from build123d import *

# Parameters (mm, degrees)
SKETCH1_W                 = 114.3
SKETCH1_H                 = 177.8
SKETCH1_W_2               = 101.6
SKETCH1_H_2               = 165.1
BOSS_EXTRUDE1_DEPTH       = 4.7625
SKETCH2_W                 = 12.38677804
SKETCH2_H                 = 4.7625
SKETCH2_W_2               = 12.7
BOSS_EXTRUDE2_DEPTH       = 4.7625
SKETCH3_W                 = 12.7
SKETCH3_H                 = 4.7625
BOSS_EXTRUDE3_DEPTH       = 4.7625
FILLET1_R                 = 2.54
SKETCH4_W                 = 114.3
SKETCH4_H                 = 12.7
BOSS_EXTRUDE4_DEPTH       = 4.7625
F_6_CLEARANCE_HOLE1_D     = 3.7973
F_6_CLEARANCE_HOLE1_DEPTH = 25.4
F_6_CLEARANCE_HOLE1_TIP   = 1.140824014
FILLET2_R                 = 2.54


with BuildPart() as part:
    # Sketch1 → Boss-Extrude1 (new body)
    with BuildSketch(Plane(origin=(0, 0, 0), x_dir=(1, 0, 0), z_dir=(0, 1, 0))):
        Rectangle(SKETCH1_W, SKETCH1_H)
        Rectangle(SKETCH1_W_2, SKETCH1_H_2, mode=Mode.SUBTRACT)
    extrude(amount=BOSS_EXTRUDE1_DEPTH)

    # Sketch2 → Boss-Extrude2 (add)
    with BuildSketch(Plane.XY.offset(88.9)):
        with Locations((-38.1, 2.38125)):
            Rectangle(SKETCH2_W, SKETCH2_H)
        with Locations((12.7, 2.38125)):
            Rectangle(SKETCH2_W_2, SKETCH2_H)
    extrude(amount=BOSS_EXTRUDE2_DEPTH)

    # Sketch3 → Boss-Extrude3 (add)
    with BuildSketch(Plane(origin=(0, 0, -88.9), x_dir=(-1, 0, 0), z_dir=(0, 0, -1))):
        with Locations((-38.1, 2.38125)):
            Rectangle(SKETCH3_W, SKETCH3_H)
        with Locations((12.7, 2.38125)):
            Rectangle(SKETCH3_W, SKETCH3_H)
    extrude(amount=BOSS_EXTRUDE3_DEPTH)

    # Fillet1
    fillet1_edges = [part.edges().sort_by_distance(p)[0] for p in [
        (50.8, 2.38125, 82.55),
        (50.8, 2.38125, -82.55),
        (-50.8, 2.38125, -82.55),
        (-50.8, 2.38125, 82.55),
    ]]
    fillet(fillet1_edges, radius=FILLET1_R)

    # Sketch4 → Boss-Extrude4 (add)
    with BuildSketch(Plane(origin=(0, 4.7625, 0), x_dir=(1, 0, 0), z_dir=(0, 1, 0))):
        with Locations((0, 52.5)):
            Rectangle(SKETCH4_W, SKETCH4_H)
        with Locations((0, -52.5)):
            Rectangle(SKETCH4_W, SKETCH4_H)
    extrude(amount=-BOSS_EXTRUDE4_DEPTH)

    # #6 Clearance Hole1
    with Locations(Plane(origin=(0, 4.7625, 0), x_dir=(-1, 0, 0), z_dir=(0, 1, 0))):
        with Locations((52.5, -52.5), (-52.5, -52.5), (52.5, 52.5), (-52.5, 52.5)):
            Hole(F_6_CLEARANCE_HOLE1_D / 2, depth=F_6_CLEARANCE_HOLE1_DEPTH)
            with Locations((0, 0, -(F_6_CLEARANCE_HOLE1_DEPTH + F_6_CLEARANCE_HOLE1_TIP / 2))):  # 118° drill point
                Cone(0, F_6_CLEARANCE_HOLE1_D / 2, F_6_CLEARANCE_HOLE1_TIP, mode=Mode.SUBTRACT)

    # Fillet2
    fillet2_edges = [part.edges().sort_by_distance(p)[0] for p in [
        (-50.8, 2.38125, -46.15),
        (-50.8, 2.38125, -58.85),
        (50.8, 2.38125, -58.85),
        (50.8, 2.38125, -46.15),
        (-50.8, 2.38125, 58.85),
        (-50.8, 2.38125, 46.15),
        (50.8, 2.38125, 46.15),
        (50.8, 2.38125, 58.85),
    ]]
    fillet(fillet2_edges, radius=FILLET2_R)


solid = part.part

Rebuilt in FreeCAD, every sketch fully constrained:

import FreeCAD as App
import Part
import Sketcher

V = App.Vector
Q = App.Units.Quantity


def edges_at(feature, points):
    """Names of the edges that pass closest to the given points."""
    edges = feature.Shape.Edges
    near = lambda p: min(range(len(edges)), key=lambda i: edges[i].distToShape(Part.Vertex(*p))[0])
    return sorted({f"Edge{near(p) + 1}" for p in points})


def add_polygon(sketch, points):
    """Adds a closed chain of lines whose ends are joined by coincident constraints."""
    first, n = sketch.GeometryCount, len(points)
    for a, b in zip(points, points[1:] + points[:1]):
        sketch.addGeometry(Part.LineSegment(App.Vector(*a, 0), App.Vector(*b, 0)), False)
    for i in range(n):
        sketch.addConstraint(Sketcher.Constraint("Coincident", first + i, 2, first + (i + 1) % n, 1))

doc = App.newDocument("Part")
body = doc.addObject("PartDesign::Body", "Body")

# Sketch on XZ plane
sketch1 = body.newObject("Sketcher::SketchObject", "Sketch")
sketch1.AttachmentSupport = (doc.getObject("XZ_Plane"), [""])
sketch1.MapMode = "FlatFace"
add_polygon(sketch1, [(-57.15, -88.9), (-57.15, 88.9), (57.15, 88.9), (57.15, -88.9)])  # lines 0-3
add_polygon(sketch1, [(50.8, 82.55), (-50.8, 82.55), (-50.8, -82.55), (50.8, -82.55)])  # lines 4-7
sketch1.addConstraint(Sketcher.Constraint("Vertical", 0))
sketch1.addConstraint(Sketcher.Constraint("Horizontal", 1))
sketch1.addConstraint(Sketcher.Constraint("Vertical", 2))
sketch1.addConstraint(Sketcher.Constraint("Horizontal", 3))
sketch1.addConstraint(Sketcher.Constraint("Horizontal", 4))
sketch1.addConstraint(Sketcher.Constraint("Vertical", 5))
sketch1.addConstraint(Sketcher.Constraint("Horizontal", 6))
sketch1.addConstraint(Sketcher.Constraint("Vertical", 7))
sketch1.addConstraint(Sketcher.Constraint("Symmetric", 0, 2, 2, 2, -1, 1))
sketch1.addConstraint(Sketcher.Constraint("Symmetric", 4, 2, 6, 2, -1, 1))
sketch1.addConstraint(Sketcher.Constraint("DistanceX", 4, 2, 4, 1, Q("4 in")))
sketch1.addConstraint(Sketcher.Constraint("DistanceY", 0, 1, 0, 2, Q("7 in")))
sketch1.addConstraint(Sketcher.Constraint("DistanceX", 1, 1, 1, 2, Q("4.5 in")))
sketch1.addConstraint(Sketcher.Constraint("DistanceY", 5, 2, 5, 1, Q("6.5 in")))
pad1 = body.newObject("PartDesign::Pad", "Pad")
pad1.Profile = sketch1
pad1.Length = Q("0.1875 in")
pad1.Reversed = True

# Sketch on XY plane
sketch2 = body.newObject("Sketcher::SketchObject", "Sketch001")
sketch2.AttachmentSupport = (doc.getObject("XY_Plane"), [""])
sketch2.MapMode = "FlatFace"
sketch2.AttachmentOffset = App.Placement(V(0, 0, 3.5 * 25.4), App.Rotation())
add_polygon(sketch2, [(-44.293389, 4.7625), (-44.293389, 0), (-31.906611, 0), (-31.906611, 4.7625)])  # lines 0-3
add_polygon(sketch2, [(6.35, 4.7625), (6.35, 0), (19.05, 0), (19.05, 4.7625)])  # lines 4-7
sketch2.addConstraint(Sketcher.Constraint("Vertical", 0))
sketch2.addConstraint(Sketcher.Constraint("Horizontal", 1))
sketch2.addConstraint(Sketcher.Constraint("Vertical", 2))
sketch2.addConstraint(Sketcher.Constraint("Horizontal", 3))
sketch2.addConstraint(Sketcher.Constraint("Vertical", 4))
sketch2.addConstraint(Sketcher.Constraint("Horizontal", 5))
sketch2.addConstraint(Sketcher.Constraint("Vertical", 6))
sketch2.addConstraint(Sketcher.Constraint("Horizontal", 7))
sketch2.addConstraint(Sketcher.Constraint("PointOnObject", 0, 2, -1))
sketch2.addConstraint(Sketcher.Constraint("PointOnObject", 4, 2, -1))
sketch2.addConstraint(Sketcher.Constraint("Horizontal", 3, 2, 6, 2))
sketch2.addConstraint(Sketcher.Constraint("DistanceX", 5, 1, 5, 2, Q("0.5 in")))
sketch2.addConstraint(Sketcher.Constraint("DistanceY", 0, 2, 0, 1, Q("0.1875 in")))
sketch2.addConstraint(Sketcher.Constraint("DistanceX", -1, 1, 4, 2, Q("0.25 in")))
sketch2.addConstraint(Sketcher.Constraint("DistanceX", 1, 1, 1, 2, Q("12.386778 mm")))
sketch2.addConstraint(Sketcher.Constraint("DistanceX", 0, 2, -1, 1, Q("44.293389 mm")))
pad2 = body.newObject("PartDesign::Pad", "Pad001")
pad2.Profile = sketch2
pad2.Length = Q("0.1875 in")

# Sketch on XY plane
sketch3 = body.newObject("Sketcher::SketchObject", "Sketch002")
sketch3.AttachmentSupport = (doc.getObject("XY_Plane"), [""])
sketch3.MapMode = "FlatFace"
sketch3.AttachmentOffset = App.Placement(V(0, 0, -3.5 * 25.4), App.Rotation())
add_polygon(sketch3, [(44.45, 4.7625), (44.45, 0), (31.75, 0), (31.75, 4.7625)])  # lines 0-3
add_polygon(sketch3, [(-6.35, 4.7625), (-6.35, 0), (-19.05, 0), (-19.05, 4.7625)])  # lines 4-7
sketch3.addConstraint(Sketcher.Constraint("Vertical", 0))
sketch3.addConstraint(Sketcher.Constraint("Horizontal", 1))
sketch3.addConstraint(Sketcher.Constraint("Vertical", 2))
sketch3.addConstraint(Sketcher.Constraint("Horizontal", 3))
sketch3.addConstraint(Sketcher.Constraint("Vertical", 4))
sketch3.addConstraint(Sketcher.Constraint("Horizontal", 5))
sketch3.addConstraint(Sketcher.Constraint("Vertical", 6))
sketch3.addConstraint(Sketcher.Constraint("Horizontal", 7))
sketch3.addConstraint(Sketcher.Constraint("PointOnObject", 0, 2, -1))
sketch3.addConstraint(Sketcher.Constraint("PointOnObject", 4, 2, -1))
sketch3.addConstraint(Sketcher.Constraint("Horizontal", 3, 2, 6, 2))
sketch3.addConstraint(Sketcher.Constraint("Equal", 3, 5))
sketch3.addConstraint(Sketcher.Constraint("DistanceX", 1, 2, 1, 1, Q("0.5 in")))
sketch3.addConstraint(Sketcher.Constraint("DistanceX", 4, 2, 0, 2, Q("2 in")))
sketch3.addConstraint(Sketcher.Constraint("DistanceY", 0, 2, 0, 1, Q("0.1875 in")))
sketch3.addConstraint(Sketcher.Constraint("DistanceX", -1, 1, 0, 2, Q("1.75 in")))
pad3 = body.newObject("PartDesign::Pad", "Pad002")
pad3.Profile = sketch3
pad3.Length = Q("0.1875 in")
pad3.Reversed = True
doc.recompute()

fillet = body.newObject("PartDesign::Fillet", "Fillet")
fillet.Base = (pad3, edges_at(pad3, [
    (50.8, 2.381, 82.55),
    (50.8, 2.381, -82.55),
    (-50.8, 2.381, -82.55),
    (-50.8, 2.381, 82.55),
]))
fillet.Radius = Q("0.1 in")

# Sketch on XZ plane
sketch4 = body.newObject("Sketcher::SketchObject", "Sketch003")
sketch4.AttachmentSupport = (doc.getObject("XZ_Plane"), [""])
sketch4.MapMode = "FlatFace"
sketch4.AttachmentOffset = App.Placement(V(0, 0, -0.1875 * 25.4), App.Rotation())
add_polygon(sketch4, [(-57.15, -58.85), (-57.15, -46.15), (57.15, -46.15), (57.15, -58.85)])  # lines 0-3
add_polygon(sketch4, [(-57.15, 46.15), (-57.15, 58.85), (57.15, 58.85), (57.15, 46.15)])  # lines 4-7
sketch4.addConstraint(Sketcher.Constraint("Vertical", 0))
sketch4.addConstraint(Sketcher.Constraint("Horizontal", 1))
sketch4.addConstraint(Sketcher.Constraint("Vertical", 2))
sketch4.addConstraint(Sketcher.Constraint("Horizontal", 3))
sketch4.addConstraint(Sketcher.Constraint("Vertical", 4))
sketch4.addConstraint(Sketcher.Constraint("Horizontal", 5))
sketch4.addConstraint(Sketcher.Constraint("Vertical", 6))
sketch4.addConstraint(Sketcher.Constraint("Horizontal", 7))
sketch4.addConstraint(Sketcher.Constraint("Symmetric", 2, 2, 4, 2, -1, 1))
sketch4.addConstraint(Sketcher.Constraint("Symmetric", 0, 2, 6, 2, -1, 1))
sketch4.addConstraint(Sketcher.Constraint("Vertical", 3, 2, 4, 2))
sketch4.addConstraint(Sketcher.Constraint("DistanceX", 1, 1, 1, 2, Q("4.5 in")))
sketch4.addConstraint(Sketcher.Constraint("DistanceY", 0, 1, 0, 2, Q("0.5 in")))
sketch4.addConstraint(Sketcher.Constraint("DistanceY", 0, 2, -1, 1, Q("46.15 mm")))
pad4 = body.newObject("PartDesign::Pad", "Pad003")
pad4.Profile = sketch4
pad4.Length = Q("0.1875 in")

# Sketch on XZ plane
sketch5 = body.newObject("Sketcher::SketchObject", "Sketch004")
sketch5.AttachmentSupport = (doc.getObject("XZ_Plane"), [""])
sketch5.MapMode = "FlatFace"
sketch5.AttachmentOffset = App.Placement(V(0, 0, -0.1875 * 25.4), App.Rotation())
sketch5.addGeometry(Part.Circle(V(-52.5, -52.5, 0), V(0, 0, 1), 1.89865), False)
sketch5.addGeometry(Part.Circle(V(52.5, -52.5, 0), V(0, 0, 1), 1.89865), False)
sketch5.addGeometry(Part.Circle(V(-52.5, 52.5, 0), V(0, 0, 1), 1.89865), False)
sketch5.addGeometry(Part.Circle(V(52.5, 52.5, 0), V(0, 0, 1), 1.89865), False)
sketch5.addConstraint(Sketcher.Constraint("Equal", 0, 1))
sketch5.addConstraint(Sketcher.Constraint("Equal", 1, 2))
sketch5.addConstraint(Sketcher.Constraint("Equal", 2, 3))
sketch5.addConstraint(Sketcher.Constraint("Symmetric", 1, 3, 2, 3, -1, 1))
sketch5.addConstraint(Sketcher.Constraint("Symmetric", 0, 3, 3, 3, -1, 1))
sketch5.addConstraint(Sketcher.Constraint("Symmetric", 0, 3, 1, 3, -2))
sketch5.addConstraint(Sketcher.Constraint("Diameter", 0, Q("0.1495 in")))
sketch5.addConstraint(Sketcher.Constraint("DistanceX", 0, 3, -1, 1, Q("52.5 mm")))
sketch5.addConstraint(Sketcher.Constraint("DistanceY", 0, 3, -1, 1, Q("52.5 mm")))
doc.recompute()
hole = body.newObject("PartDesign::Hole", "Hole")
hole.Profile = sketch5
hole.ThreadType = "None"
hole.Diameter = Q("0.1495 in")
hole.DepthType = "Dimension"
hole.Depth = Q("1 in")
hole.DrillPoint = "Angled"
hole.DrillPointAngle = 118
hole.Reversed = True
doc.recompute()

fillet2 = body.newObject("PartDesign::Fillet", "Fillet001")
fillet2.Base = (hole, edges_at(hole, [
    (-50.8, 2.381, -46.15),
    (-50.8, 2.381, -58.85),
    (50.8, 2.381, -58.85),
    (50.8, 2.381, -46.15),
    (-50.8, 2.381, 58.85),
    (-50.8, 2.381, 46.15),
    (50.8, 2.381, 46.15),
    (50.8, 2.381, 58.85),
]))
fillet2.Radius = Q("0.1 in")

doc.recompute()
